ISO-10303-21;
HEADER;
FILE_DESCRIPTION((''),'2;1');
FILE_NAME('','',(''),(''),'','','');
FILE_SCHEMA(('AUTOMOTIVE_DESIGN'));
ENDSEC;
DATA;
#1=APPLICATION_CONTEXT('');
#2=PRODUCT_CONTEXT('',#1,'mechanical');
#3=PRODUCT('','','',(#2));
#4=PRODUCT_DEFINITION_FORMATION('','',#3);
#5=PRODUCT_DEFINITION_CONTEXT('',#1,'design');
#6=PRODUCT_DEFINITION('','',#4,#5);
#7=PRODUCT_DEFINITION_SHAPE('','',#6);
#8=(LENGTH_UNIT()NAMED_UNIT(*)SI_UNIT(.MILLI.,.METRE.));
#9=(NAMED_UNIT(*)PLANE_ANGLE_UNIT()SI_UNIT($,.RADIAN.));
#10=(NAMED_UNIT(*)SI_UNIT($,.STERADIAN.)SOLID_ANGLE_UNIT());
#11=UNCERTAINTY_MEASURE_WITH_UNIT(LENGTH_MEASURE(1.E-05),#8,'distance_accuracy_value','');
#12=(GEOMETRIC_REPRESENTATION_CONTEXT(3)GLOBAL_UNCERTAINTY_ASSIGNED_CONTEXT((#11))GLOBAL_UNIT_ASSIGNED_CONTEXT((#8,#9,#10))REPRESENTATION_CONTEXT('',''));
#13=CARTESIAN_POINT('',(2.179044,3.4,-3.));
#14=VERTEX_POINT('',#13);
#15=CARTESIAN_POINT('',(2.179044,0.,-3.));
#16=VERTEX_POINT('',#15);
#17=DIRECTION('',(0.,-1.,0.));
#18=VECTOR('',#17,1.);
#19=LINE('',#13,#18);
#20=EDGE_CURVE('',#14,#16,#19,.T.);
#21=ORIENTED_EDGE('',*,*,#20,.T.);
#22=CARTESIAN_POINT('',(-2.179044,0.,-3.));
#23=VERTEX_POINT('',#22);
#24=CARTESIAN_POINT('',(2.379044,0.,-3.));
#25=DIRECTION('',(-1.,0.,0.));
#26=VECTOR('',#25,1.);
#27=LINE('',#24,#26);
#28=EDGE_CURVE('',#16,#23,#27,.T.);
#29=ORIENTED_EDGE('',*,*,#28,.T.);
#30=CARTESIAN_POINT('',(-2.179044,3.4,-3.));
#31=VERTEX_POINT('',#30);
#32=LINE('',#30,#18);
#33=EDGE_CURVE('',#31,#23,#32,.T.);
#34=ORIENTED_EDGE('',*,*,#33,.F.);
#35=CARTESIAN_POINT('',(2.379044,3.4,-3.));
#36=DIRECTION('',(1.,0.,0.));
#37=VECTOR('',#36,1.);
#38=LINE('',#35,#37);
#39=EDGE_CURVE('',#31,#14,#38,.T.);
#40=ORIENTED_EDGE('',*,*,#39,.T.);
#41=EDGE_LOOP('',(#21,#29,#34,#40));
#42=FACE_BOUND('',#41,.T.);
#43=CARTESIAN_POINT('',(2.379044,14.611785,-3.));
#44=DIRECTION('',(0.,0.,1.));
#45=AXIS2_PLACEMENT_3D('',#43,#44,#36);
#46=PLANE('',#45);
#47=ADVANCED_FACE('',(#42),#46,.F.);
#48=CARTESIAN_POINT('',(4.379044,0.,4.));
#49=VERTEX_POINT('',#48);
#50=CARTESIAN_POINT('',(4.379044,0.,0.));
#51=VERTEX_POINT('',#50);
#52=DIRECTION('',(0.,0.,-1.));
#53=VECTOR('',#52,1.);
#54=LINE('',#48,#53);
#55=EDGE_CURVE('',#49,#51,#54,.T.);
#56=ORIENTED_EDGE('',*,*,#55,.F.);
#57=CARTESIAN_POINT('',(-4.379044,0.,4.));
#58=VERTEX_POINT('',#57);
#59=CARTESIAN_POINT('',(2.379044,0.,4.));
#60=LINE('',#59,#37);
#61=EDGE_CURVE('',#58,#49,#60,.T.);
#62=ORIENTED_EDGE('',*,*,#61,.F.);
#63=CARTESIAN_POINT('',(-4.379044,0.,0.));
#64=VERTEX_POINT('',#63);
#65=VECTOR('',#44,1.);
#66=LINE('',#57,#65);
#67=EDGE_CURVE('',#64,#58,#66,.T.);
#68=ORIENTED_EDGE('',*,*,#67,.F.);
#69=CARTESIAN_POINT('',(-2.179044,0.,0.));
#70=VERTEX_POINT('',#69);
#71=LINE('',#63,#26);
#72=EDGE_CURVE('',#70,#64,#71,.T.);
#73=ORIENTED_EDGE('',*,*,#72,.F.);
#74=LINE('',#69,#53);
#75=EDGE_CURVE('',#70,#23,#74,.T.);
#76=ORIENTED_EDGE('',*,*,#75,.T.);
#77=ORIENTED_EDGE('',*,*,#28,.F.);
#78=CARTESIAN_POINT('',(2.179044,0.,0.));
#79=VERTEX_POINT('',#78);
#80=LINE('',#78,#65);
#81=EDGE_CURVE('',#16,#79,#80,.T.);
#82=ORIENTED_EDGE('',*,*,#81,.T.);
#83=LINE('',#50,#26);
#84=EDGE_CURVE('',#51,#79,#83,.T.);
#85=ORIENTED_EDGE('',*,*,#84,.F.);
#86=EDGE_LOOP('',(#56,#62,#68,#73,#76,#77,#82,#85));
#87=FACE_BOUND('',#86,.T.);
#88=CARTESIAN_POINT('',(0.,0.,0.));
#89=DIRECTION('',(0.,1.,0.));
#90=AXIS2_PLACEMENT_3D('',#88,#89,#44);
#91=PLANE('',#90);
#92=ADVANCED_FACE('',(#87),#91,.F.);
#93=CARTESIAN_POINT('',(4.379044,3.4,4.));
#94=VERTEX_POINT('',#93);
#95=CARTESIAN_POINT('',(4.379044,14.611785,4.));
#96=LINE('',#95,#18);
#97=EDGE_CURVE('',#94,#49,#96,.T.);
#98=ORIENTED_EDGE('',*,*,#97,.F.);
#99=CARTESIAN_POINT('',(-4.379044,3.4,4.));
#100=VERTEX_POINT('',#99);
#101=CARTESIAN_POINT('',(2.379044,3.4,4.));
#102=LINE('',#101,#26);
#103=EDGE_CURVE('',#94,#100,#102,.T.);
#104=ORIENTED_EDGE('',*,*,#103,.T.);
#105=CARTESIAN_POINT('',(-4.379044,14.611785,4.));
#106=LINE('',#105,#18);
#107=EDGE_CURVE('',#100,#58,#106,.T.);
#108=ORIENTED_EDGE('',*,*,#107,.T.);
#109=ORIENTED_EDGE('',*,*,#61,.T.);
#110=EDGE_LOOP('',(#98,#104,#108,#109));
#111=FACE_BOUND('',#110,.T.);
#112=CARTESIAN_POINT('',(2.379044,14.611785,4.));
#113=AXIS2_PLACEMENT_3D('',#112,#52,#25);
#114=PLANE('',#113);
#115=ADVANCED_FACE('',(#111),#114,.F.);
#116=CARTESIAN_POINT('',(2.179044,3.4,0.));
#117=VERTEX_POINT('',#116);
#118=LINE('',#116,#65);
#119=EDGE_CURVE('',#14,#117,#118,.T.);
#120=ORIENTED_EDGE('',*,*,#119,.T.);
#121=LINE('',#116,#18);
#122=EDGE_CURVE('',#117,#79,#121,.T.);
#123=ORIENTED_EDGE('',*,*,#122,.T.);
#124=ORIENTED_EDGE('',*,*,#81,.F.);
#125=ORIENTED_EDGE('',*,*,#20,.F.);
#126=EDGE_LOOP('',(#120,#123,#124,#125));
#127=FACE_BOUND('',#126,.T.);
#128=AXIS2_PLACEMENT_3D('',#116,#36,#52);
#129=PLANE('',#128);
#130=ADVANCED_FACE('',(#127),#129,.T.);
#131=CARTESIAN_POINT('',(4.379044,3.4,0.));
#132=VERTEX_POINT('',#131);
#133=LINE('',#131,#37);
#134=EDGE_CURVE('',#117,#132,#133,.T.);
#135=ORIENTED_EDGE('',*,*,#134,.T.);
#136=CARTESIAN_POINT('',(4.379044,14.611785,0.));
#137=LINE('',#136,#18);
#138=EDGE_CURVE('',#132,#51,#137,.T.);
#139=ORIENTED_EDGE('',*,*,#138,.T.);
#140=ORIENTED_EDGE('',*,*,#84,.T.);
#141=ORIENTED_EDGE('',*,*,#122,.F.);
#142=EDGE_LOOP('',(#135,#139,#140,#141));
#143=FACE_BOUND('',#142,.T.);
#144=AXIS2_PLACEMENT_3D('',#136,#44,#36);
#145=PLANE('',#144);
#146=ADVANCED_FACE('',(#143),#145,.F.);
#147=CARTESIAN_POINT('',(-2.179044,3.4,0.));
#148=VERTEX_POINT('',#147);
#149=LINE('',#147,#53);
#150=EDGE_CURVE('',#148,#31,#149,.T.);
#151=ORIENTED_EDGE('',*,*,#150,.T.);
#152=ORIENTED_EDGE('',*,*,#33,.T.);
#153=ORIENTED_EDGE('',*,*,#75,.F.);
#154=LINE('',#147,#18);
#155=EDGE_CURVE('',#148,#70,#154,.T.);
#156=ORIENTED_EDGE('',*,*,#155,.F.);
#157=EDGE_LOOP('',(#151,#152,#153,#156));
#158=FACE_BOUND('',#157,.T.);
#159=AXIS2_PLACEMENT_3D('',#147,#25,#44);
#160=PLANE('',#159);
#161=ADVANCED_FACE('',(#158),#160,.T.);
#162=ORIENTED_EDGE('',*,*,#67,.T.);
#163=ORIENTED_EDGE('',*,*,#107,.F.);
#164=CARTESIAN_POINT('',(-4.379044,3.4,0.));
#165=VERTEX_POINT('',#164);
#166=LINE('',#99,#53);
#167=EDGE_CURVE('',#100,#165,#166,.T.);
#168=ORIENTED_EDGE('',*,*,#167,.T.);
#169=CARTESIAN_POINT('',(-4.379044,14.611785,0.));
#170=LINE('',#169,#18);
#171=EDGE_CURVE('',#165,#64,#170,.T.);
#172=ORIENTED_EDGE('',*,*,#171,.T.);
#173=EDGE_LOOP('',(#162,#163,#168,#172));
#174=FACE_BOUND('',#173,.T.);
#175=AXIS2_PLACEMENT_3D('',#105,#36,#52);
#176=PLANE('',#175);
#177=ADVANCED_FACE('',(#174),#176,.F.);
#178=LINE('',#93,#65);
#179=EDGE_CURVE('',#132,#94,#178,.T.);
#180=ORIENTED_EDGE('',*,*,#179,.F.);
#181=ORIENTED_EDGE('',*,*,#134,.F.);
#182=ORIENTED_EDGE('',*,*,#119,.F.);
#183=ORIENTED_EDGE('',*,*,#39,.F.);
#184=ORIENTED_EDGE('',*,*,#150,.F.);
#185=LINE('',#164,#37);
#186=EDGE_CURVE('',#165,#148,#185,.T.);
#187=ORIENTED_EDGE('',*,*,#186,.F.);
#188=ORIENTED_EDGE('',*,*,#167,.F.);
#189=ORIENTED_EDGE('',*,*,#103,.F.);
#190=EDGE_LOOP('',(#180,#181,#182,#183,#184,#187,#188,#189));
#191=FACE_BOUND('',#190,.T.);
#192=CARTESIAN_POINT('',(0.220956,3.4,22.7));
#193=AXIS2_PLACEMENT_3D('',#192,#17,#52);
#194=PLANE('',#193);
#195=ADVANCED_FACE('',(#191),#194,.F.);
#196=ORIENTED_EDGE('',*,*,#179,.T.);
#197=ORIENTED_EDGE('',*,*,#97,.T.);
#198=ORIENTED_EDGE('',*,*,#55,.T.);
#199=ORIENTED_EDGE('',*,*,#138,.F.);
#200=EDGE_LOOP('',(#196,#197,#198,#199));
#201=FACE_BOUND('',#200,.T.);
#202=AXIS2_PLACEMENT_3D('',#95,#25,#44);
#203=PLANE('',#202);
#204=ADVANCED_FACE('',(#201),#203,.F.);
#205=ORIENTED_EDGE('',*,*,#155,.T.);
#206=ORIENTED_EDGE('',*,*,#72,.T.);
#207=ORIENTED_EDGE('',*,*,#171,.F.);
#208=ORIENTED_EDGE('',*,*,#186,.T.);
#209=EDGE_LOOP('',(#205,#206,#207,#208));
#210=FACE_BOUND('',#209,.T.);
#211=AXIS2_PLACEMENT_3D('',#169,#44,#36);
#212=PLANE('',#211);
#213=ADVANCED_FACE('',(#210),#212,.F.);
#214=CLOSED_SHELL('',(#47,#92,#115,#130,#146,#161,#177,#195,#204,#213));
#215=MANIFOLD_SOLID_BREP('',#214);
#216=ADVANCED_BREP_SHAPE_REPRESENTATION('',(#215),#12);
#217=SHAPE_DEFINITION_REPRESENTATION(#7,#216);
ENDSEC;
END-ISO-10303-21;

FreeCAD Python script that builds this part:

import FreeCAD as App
import Part
import Sketcher
from FreeCAD import Vector


def add_polygon(sketch, points):
    """Adds a closed chain of lines whose ends are joined by coincident constraints."""
    first, n = sketch.GeometryCount, len(points)
    for a, b in zip(points, points[1:] + points[:1]):
        sketch.addGeometry(Part.LineSegment(App.Vector(*a, 0), App.Vector(*b, 0)), False)
    for i in range(n):
        sketch.addConstraint(Sketcher.Constraint("Coincident", first + i, 2, first + (i + 1) % n, 1))

doc = App.newDocument("Part")
body = doc.addObject("PartDesign::Body", "Body")

# Sketch on XZ plane
sketch1 = doc.addObject("Sketcher::SketchObject", "Sketch")
body.addObject(sketch1)
sketch1.AttachmentSupport = (doc.XZ_Plane, [""])
sketch1.MapMode = "FlatFace"
add_polygon(sketch1, [(-4.4, 4), (4.4, 4), (4.4, 0), (2.4, 0), (2.4, -3), (-2.4, -3), (-2.4, 0), (-4.4, 0)])  # lines 0-7
sketch1.addConstraint([
    Sketcher.Constraint("Horizontal", 0),
    Sketcher.Constraint("Vertical", 1),
    Sketcher.Constraint("Horizontal", 2),
    Sketcher.Constraint("Vertical", 3),
    Sketcher.Constraint("Horizontal", 4),
    Sketcher.Constraint("Vertical", 5),
    Sketcher.Constraint("Horizontal", 6),
    Sketcher.Constraint("Vertical", 7),
    Sketcher.Constraint("Symmetric", 2, 2, 5, 2, -1, 1),
    Sketcher.Constraint("Symmetric", 1, 2, 6, 2, -2),
    Sketcher.Constraint("DistanceX", 2, 2, 2, 1, 2.0),
    Sketcher.Constraint("DistanceY", 1, 2, 1, 1, 4.0),
    Sketcher.Constraint("DistanceY", 3, 2, 3, 1, 3.0),
    Sketcher.Constraint("DistanceX", 0, 1, 0, 2, 8.758088),
])
pad1 = doc.addObject("PartDesign::Pad", "Pad")
body.addObject(pad1)
pad1.Profile = sketch1
pad1.Length = 3.4
pad1.Reversed = True

# Sketch on XZ plane
sketch2 = doc.addObject("Sketcher::SketchObject", "Sketch001")
body.addObject(sketch2)
sketch2.AttachmentSupport = (doc.XZ_Plane, [""])
sketch2.MapMode = "FlatFace"
add_polygon(sketch2, [(2.18, -3), (2.18, 0), (2.58, 0), (2.58, -3)])  # lines 0-3
add_polygon(sketch2, [(-2.58, -3), (-2.58, 0), (-2.18, 0), (-2.18, -3)])  # lines 4-7
sketch2.addConstraint([
    Sketcher.Constraint("Vertical", 0),
    Sketcher.Constraint("Horizontal", 1),
    Sketcher.Constraint("Vertical", 2),
    Sketcher.Constraint("Horizontal", 3),
    Sketcher.Constraint("Vertical", 4),
    Sketcher.Constraint("Horizontal", 5),
    Sketcher.Constraint("Vertical", 6),
    Sketcher.Constraint("Horizontal", 7),
    Sketcher.Constraint("Symmetric", 1, 2, 4, 2, -1, 1),
    Sketcher.Constraint("Symmetric", 0, 2, 5, 2, -2),
    Sketcher.Constraint("Horizontal", 3, 2, 6, 2),
    Sketcher.Constraint("DistanceY", 0, 1, 0, 2, 3.0),
    Sketcher.Constraint("DistanceX", 1, 1, 1, 2, 0.4),
    Sketcher.Constraint("DistanceX", 4, 2, 0, 2, 4.758088),
])
pocket1 = doc.addObject("PartDesign::Pocket", "Pocket")
body.addObject(pocket1)
pocket1.Profile = sketch2
pocket1.Type = "ThroughAll"

doc.recompute()
